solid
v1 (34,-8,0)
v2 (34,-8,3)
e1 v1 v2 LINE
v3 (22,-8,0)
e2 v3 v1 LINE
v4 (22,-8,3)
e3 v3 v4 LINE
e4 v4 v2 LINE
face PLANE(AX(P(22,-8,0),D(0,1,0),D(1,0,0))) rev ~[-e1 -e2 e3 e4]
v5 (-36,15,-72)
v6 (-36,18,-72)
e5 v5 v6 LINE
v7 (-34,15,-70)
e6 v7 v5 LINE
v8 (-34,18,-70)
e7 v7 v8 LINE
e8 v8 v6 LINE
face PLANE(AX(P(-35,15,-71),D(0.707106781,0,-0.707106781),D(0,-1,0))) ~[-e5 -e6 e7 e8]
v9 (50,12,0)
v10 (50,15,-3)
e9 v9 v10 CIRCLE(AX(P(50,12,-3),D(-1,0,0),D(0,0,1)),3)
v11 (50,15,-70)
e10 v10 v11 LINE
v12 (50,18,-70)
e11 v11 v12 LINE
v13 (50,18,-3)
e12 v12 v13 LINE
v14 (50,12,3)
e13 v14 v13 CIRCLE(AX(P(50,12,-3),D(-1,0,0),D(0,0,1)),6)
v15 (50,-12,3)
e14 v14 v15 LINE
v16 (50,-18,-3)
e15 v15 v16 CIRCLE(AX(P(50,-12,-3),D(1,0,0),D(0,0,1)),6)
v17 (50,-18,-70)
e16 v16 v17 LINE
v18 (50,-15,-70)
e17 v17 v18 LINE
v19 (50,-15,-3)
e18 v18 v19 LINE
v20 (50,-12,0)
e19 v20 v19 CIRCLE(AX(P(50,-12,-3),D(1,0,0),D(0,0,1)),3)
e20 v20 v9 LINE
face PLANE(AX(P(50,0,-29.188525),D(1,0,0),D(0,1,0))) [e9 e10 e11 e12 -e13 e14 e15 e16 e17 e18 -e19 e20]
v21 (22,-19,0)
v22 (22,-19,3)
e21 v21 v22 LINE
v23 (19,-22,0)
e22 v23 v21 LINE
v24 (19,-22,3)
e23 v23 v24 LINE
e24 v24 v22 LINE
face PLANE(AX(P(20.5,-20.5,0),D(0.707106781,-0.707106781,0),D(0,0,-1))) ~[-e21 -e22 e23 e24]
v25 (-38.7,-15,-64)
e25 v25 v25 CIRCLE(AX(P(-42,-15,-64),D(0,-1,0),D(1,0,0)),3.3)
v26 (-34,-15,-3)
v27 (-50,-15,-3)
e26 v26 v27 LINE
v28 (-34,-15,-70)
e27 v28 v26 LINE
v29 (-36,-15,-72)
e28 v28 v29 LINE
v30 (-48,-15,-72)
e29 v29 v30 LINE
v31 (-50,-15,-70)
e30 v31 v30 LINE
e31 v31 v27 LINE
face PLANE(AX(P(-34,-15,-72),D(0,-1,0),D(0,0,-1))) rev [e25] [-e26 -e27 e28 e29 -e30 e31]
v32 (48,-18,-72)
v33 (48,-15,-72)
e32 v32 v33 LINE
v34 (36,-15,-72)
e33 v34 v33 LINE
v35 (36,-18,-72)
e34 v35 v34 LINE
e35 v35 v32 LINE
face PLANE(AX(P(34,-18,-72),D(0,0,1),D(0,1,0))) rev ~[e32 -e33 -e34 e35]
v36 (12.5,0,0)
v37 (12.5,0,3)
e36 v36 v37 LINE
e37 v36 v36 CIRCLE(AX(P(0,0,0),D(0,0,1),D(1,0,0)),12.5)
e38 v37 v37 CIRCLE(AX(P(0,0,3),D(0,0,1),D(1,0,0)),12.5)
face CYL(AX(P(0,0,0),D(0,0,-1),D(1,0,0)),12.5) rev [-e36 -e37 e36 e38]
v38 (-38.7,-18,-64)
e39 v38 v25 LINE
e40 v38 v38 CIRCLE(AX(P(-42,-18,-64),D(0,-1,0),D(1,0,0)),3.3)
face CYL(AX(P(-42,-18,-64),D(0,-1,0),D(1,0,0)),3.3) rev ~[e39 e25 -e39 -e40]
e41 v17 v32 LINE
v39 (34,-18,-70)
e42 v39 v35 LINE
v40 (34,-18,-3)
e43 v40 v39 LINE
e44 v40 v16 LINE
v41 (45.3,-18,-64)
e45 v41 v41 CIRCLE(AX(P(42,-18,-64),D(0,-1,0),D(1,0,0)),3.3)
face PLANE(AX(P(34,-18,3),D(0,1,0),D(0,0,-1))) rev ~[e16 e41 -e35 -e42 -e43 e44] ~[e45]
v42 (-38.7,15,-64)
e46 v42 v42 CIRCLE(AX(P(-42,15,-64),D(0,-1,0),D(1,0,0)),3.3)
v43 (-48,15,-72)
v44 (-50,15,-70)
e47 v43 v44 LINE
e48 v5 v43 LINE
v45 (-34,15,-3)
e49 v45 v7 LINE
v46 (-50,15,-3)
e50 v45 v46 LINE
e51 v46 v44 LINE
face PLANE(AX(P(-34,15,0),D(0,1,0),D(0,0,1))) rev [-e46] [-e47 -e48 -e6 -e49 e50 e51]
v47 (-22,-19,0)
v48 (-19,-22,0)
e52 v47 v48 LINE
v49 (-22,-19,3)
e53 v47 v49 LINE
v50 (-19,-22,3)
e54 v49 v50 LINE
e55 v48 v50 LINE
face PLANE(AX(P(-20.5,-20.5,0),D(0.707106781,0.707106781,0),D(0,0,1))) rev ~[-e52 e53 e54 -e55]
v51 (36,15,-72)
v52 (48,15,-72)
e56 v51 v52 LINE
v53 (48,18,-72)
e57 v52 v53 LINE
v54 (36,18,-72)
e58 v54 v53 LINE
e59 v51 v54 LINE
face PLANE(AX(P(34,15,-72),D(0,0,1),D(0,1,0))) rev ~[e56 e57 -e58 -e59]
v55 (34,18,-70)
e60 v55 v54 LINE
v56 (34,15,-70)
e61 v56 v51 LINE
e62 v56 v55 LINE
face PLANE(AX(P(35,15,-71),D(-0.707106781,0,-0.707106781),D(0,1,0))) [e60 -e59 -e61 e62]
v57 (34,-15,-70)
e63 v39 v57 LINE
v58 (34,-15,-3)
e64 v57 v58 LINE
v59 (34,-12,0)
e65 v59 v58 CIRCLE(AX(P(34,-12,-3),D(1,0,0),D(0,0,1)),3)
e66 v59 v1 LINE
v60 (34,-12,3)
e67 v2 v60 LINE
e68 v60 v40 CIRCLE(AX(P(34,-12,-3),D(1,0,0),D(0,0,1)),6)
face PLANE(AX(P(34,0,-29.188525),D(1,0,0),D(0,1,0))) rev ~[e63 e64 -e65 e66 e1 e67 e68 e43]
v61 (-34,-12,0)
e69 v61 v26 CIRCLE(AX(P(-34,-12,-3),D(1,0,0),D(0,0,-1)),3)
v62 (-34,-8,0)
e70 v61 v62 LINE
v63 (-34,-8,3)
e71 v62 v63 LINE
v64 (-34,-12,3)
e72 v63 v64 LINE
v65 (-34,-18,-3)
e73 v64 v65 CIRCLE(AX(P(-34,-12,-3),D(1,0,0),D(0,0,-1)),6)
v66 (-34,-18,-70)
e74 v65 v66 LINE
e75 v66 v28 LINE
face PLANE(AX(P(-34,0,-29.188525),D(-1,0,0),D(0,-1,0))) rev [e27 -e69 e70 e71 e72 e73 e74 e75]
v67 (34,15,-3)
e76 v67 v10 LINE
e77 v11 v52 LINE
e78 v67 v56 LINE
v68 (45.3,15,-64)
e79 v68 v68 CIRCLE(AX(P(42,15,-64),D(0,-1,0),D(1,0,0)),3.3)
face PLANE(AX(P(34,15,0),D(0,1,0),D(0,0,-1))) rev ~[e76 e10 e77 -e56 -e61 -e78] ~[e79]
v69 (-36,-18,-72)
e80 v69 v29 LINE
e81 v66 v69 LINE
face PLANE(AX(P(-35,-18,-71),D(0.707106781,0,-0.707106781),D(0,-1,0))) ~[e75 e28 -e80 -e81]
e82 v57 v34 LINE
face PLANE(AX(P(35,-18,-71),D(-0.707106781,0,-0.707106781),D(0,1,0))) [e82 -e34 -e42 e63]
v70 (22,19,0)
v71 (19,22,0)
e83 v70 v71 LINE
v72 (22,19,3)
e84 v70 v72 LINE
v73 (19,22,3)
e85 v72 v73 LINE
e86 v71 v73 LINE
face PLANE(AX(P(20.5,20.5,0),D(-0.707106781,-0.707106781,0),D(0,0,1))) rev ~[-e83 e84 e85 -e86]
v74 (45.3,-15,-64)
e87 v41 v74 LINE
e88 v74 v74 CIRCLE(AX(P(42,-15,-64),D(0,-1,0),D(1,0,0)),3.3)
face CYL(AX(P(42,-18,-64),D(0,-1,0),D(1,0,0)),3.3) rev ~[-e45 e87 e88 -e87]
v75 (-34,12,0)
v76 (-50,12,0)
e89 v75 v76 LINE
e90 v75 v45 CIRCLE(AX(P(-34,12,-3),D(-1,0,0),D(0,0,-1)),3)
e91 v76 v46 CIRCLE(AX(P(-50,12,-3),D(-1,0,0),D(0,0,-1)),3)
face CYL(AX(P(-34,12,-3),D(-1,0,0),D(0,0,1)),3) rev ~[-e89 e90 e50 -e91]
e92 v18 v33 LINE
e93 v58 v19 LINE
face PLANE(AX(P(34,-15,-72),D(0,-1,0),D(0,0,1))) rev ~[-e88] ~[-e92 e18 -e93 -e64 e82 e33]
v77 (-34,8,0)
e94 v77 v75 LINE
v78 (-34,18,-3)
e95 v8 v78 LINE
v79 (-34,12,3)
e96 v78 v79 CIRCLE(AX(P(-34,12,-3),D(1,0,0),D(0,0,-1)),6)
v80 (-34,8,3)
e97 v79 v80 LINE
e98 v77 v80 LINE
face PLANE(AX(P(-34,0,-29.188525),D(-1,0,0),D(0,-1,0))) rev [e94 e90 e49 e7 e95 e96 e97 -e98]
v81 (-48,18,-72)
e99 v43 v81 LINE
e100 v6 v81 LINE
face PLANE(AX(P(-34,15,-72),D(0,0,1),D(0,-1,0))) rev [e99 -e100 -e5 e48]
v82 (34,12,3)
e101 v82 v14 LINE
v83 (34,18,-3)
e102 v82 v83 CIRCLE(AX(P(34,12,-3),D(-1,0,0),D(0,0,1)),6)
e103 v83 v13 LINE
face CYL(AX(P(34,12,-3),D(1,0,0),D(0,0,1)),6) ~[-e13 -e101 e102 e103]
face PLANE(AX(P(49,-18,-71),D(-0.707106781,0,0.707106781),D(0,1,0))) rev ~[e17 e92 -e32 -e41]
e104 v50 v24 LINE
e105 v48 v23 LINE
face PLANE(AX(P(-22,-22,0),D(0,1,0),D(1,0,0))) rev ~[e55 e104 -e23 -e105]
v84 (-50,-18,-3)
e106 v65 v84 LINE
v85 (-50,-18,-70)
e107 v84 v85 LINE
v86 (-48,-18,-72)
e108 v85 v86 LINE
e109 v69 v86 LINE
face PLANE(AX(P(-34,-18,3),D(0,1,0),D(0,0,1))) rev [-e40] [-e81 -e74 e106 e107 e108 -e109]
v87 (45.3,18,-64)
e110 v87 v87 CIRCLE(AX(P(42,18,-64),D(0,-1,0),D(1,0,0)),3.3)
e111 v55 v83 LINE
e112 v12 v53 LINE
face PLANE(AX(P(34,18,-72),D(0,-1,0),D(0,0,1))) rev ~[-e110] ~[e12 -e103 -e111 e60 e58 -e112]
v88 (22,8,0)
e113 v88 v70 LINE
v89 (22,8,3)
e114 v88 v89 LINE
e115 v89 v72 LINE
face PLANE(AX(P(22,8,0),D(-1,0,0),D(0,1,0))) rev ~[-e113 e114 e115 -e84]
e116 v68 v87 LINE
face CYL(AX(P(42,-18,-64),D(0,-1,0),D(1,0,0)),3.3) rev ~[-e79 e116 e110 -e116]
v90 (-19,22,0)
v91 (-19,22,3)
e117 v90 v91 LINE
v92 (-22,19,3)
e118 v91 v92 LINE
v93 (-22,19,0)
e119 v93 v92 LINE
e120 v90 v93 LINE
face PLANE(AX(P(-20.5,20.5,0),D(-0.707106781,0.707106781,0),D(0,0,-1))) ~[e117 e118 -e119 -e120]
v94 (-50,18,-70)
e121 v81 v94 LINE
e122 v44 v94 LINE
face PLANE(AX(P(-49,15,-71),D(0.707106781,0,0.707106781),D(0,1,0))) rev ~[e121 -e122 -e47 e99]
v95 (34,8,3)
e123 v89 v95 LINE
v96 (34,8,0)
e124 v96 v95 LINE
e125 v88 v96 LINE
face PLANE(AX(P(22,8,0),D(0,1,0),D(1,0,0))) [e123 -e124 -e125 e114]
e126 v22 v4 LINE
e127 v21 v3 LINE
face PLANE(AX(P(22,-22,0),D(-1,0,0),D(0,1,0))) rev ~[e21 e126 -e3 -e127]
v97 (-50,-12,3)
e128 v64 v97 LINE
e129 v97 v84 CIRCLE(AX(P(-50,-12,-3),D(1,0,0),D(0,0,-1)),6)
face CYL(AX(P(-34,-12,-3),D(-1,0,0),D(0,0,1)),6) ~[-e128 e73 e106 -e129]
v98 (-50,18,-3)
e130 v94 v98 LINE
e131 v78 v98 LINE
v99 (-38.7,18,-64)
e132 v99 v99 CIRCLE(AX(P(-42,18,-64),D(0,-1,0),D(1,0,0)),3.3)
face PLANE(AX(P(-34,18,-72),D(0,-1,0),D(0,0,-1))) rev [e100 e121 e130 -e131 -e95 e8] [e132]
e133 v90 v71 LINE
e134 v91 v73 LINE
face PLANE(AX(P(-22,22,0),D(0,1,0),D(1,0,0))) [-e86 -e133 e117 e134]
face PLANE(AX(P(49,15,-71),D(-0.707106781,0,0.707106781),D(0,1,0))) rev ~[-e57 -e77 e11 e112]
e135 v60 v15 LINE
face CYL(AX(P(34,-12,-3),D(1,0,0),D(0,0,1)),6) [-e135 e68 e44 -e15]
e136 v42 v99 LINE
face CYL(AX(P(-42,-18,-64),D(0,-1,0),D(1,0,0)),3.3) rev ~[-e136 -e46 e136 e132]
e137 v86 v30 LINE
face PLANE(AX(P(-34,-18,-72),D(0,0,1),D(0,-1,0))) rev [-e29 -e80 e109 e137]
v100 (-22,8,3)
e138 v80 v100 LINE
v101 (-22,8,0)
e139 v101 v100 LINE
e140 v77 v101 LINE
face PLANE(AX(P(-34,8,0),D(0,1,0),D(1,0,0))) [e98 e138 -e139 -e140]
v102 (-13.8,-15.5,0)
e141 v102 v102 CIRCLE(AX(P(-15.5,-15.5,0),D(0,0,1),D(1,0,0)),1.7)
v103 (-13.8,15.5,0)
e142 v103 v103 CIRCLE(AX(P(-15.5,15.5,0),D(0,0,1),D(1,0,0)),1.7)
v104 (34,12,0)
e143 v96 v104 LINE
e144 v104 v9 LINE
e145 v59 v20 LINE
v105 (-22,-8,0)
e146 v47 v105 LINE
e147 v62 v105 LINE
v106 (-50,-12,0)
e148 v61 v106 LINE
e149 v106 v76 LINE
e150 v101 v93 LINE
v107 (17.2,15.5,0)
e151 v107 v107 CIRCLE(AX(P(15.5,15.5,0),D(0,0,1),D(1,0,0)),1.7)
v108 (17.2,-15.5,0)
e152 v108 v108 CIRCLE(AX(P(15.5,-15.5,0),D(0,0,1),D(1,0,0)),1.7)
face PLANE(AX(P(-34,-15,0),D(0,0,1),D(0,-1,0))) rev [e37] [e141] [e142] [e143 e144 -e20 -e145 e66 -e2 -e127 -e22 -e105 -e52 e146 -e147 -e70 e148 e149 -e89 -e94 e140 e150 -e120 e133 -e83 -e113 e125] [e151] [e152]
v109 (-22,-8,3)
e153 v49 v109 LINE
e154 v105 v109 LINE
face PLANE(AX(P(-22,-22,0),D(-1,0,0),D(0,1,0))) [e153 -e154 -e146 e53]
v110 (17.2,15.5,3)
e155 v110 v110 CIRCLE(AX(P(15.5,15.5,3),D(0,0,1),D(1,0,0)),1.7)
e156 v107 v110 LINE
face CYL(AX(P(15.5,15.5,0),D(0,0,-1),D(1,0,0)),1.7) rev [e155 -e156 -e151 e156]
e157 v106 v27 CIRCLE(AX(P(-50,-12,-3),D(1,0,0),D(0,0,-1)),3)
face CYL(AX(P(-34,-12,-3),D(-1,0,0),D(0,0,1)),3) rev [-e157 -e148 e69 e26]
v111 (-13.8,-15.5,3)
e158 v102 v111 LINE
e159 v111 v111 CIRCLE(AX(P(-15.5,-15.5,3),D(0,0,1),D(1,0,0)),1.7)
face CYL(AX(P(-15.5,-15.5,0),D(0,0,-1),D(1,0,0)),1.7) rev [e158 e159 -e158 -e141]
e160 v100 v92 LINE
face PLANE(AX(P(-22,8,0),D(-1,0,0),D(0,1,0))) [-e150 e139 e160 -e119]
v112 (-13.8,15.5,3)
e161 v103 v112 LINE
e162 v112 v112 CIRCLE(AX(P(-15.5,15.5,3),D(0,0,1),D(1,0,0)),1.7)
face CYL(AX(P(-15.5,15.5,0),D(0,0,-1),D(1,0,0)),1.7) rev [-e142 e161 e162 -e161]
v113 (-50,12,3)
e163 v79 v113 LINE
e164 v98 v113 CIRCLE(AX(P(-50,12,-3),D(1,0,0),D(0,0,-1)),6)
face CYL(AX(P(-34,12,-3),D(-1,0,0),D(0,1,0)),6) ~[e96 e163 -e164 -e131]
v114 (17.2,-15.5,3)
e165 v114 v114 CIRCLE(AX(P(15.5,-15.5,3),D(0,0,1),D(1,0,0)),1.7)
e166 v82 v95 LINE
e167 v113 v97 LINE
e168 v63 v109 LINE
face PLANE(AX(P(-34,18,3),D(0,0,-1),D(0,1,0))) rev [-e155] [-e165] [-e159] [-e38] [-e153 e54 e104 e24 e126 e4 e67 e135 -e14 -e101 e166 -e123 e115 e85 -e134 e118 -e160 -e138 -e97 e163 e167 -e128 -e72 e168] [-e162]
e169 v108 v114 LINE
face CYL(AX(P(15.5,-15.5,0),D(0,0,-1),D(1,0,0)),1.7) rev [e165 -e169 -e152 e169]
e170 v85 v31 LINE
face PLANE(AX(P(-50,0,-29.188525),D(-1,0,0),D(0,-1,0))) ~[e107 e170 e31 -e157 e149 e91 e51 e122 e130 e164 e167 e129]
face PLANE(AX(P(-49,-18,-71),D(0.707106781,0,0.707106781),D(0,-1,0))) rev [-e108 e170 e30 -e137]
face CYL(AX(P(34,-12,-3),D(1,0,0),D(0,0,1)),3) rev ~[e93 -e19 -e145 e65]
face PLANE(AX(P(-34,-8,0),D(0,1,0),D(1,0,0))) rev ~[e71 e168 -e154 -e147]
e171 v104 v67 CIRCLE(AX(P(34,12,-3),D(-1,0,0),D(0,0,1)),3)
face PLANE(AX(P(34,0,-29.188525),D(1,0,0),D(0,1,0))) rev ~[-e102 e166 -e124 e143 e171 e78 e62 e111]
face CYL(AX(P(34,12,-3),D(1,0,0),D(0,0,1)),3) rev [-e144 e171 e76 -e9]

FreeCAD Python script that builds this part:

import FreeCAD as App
import Part
import Sketcher

V = App.Vector
Q = App.Units.Quantity


def edges_at(feature, points):
    """Names of the edges that pass closest to the given points."""
    edges = feature.Shape.Edges
    near = lambda p: min(range(len(edges)), key=lambda i: edges[i].distToShape(Part.Vertex(*p))[0])
    return sorted({f"Edge{near(p) + 1}" for p in points})


def add_polygon(sketch, points):
    """Adds a closed chain of lines whose ends are joined by coincident constraints."""
    first, n = sketch.GeometryCount, len(points)
    for a, b in zip(points, points[1:] + points[:1]):
        sketch.addGeometry(Part.LineSegment(App.Vector(*a, 0), App.Vector(*b, 0)), False)
    for i in range(n):
        sketch.addConstraint(Sketcher.Constraint("Coincident", first + i, 2, first + (i + 1) % n, 1))

doc = App.newDocument("Part")
body = doc.addObject("PartDesign::Body", "Body")

# Sketch on XY plane
sketch1 = doc.addObject("Sketcher::SketchObject", "Sketch")
body.addObject(sketch1)
sketch1.AttachmentSupport = (doc.XY_Plane, [""])
sketch1.MapMode = "FlatFace"
add_polygon(sketch1, [(-22, -8), (-22, -22), (22, -22), (22, -8), (34, -8), (34, 8), (22, 8), (22, 22), (-22, 22), (-22, 8), (-34, 8), (-34, -8)])  # lines 0-11
sketch1.addGeometry(Part.Circle(V(-15.5, -15.5, 0), V(0, 0, 1), 1.7), False)  # 12
sketch1.addGeometry(Part.Circle(V(15.5, -15.5, 0), V(0, 0, 1), 1.7), False)  # 13
sketch1.addGeometry(Part.Circle(V(-15.5, 15.5, 0), V(0, 0, 1), 1.7), False)  # 14
sketch1.addGeometry(Part.Circle(V(0, 0, 0), V(0, 0, 1), 12.5), False)  # 15
sketch1.addGeometry(Part.Circle(V(15.5, 15.5, 0), V(0, 0, 1), 1.7), False)  # 16
sketch1.addConstraint([
    Sketcher.Constraint("Vertical", 0),
    Sketcher.Constraint("Horizontal", 1),
    Sketcher.Constraint("Vertical", 2),
    Sketcher.Constraint("Horizontal", 3),
    Sketcher.Constraint("Vertical", 4),
    Sketcher.Constraint("Horizontal", 5),
    Sketcher.Constraint("Vertical", 6),
    Sketcher.Constraint("Horizontal", 7),
    Sketcher.Constraint("Vertical", 8),
    Sketcher.Constraint("Horizontal", 9),
    Sketcher.Constraint("Vertical", 10),
    Sketcher.Constraint("Horizontal", 11),
    Sketcher.Constraint("Coincident", 15, 3, -1, 1),
    Sketcher.Constraint("Equal", 12, 13),
    Sketcher.Constraint("Equal", 13, 14),
    Sketcher.Constraint("Equal", 14, 16),
    Sketcher.Constraint("Symmetric", 13, 3, 14, 3, -1, 1),
    Sketcher.Constraint("Symmetric", 12, 3, 16, 3, -1, 1),
    Sketcher.Constraint("Symmetric", 0, 2, 6, 2, -1, 1),
    Sketcher.Constraint("Symmetric", 2, 2, 8, 2, -1, 1),
    Sketcher.Constraint("Symmetric", 4, 2, 10, 2, -1, 1),
    Sketcher.Constraint("Symmetric", 12, 3, 13, 3, -2),
    Sketcher.Constraint("Symmetric", 5, 2, 8, 2, -2),
    Sketcher.Constraint("Diameter", 15, Q("25 mm")),
    Sketcher.Constraint("Diameter", 12, Q("3.4 mm")),
    Sketcher.Constraint("DistanceX", 1, 1, 1, 2, Q("44 mm")),
    Sketcher.Constraint("DistanceX", 3, 1, 3, 2, Q("12 mm")),
    Sketcher.Constraint("DistanceY", 0, 2, 0, 1, Q("14 mm")),
    Sketcher.Constraint("DistanceY", 4, 1, 4, 2, Q("16 mm")),
    Sketcher.Constraint("DistanceX", 12, 3, 13, 3, Q("31 mm")),
    Sketcher.Constraint("DistanceY", 12, 3, 14, 3, Q("31 mm")),
])
pad1 = doc.addObject("PartDesign::Pad", "Pad")
body.addObject(pad1)
pad1.Profile = sketch1
pad1.Length = 3
doc.recompute()

chamfer = doc.addObject("PartDesign::Chamfer", "Chamfer")
body.addObject(chamfer)
chamfer.Base = (pad1, edges_at(pad1, [
    (-22, -22, 1.5),
    (22, -22, 1.5),
    (22, 22, 1.5),
    (-22, 22, 1.5),
]))
chamfer.Size = 3

# Sketch on YZ plane
sketch2 = doc.addObject("Sketcher::SketchObject", "Sketch001")
body.addObject(sketch2)
sketch2.AttachmentSupport = (doc.YZ_Plane, [""])
sketch2.MapMode = "FlatFace"
sketch2.AttachmentOffset = App.Placement(V(0, 0, 34), App.Rotation())
add_polygon(sketch2, [(15, 0), (15, -72), (18, -72), (18, 3), (-18, 3), (-18, -72), (-15, -72), (-15, 0)])  # lines 0-7
sketch2.addConstraint([
    Sketcher.Constraint("Vertical", 0),
    Sketcher.Constraint("Horizontal", 1),
    Sketcher.Constraint("Vertical", 2),
    Sketcher.Constraint("Horizontal", 3),
    Sketcher.Constraint("Vertical", 4),
    Sketcher.Constraint("Horizontal", 5),
    Sketcher.Constraint("Vertical", 6),
    Sketcher.Constraint("Horizontal", 7),
    Sketcher.Constraint("Symmetric", 6, 2, 7, 2, -1, 1),
    Sketcher.Constraint("Symmetric", 1, 2, 4, 2, -2),
    Sketcher.Constraint("DistanceX", 1, 1, 1, 2, Q("3 mm")),
    Sketcher.Constraint("DistanceX", 3, 2, 3, 1, Q("36 mm")),
    Sketcher.Constraint("DistanceY", 0, 2, 0, 1, Q("72 mm")),
    Sketcher.Constraint("DistanceY", 2, 1, 2, 2, Q("75 mm")),
])
pad2 = doc.addObject("PartDesign::Pad", "Pad001")
body.addObject(pad2)
pad2.Profile = sketch2
pad2.Length = 16
doc.recompute()

mirrored = doc.addObject("PartDesign::Mirrored", "Mirrored")
body.addObject(mirrored)
mirrored.Originals = [pad2]
mirrored.MirrorPlane = (doc.YZ_Plane, [""])
body.Tip = mirrored
doc.recompute()

fillet = doc.addObject("PartDesign::Fillet", "Fillet")
body.addObject(fillet)
fillet.Base = (mirrored, edges_at(mirrored, [
    (-42, -18, 3),
    (-42, 18, 3),
    (42, -18, 3),
    (42, 18, 3),
]))
fillet.Radius = 6
doc.recompute()

fillet2 = doc.addObject("PartDesign::Fillet", "Fillet001")
body.addObject(fillet2)
fillet2.Base = (fillet, edges_at(fillet, [
    (-42, 15, 0),
    (42, 15, 0),
    (42, -15, 0),
    (-42, -15, 0),
]))
fillet2.Radius = 3
doc.recompute()

chamfer2 = doc.addObject("PartDesign::Chamfer", "Chamfer001")
body.addObject(chamfer2)
chamfer2.Base = (fillet2, edges_at(fillet2, [
    (-50, -16.5, -72),
    (-34, -16.5, -72),
    (-50, 16.5, -72),
    (-34, 16.5, -72),
    (34, -16.5, -72),
    (50, -16.5, -72),
    (34, 16.5, -72),
    (50, 16.5, -72),
]))
chamfer2.Size = 2

# Sketch on XZ plane
sketch3 = doc.addObject("Sketcher::SketchObject", "Sketch002")
body.addObject(sketch3)
sketch3.AttachmentSupport = (doc.XZ_Plane, [""])
sketch3.MapMode = "FlatFace"
sketch3.AttachmentOffset = App.Placement(V(0, 0, 18), App.Rotation())
sketch3.addGeometry([
    Part.Circle(V(-42, -64, 0), V(0, 0, 1), 3.3),
    Part.Circle(V(42, -64, 0), V(0, 0, 1), 3.3),
], False)
sketch3.addConstraint([
    Sketcher.Constraint("Equal", 0, 1),
    Sketcher.Constraint("Symmetric", 0, 3, 1, 3, -2),
    Sketcher.Constraint("Diameter", 0, Q("6.6 mm")),
    Sketcher.Constraint("DistanceX", 0, 3, -1, 1, Q("42 mm")),
    Sketcher.Constraint("DistanceY", 0, 3, -1, 1, Q("64 mm")),
])
pocket1 = doc.addObject("PartDesign::Pocket", "Pocket")
body.addObject(pocket1)
pocket1.Profile = sketch3
pocket1.Type = "ThroughAll"

doc.recompute()
